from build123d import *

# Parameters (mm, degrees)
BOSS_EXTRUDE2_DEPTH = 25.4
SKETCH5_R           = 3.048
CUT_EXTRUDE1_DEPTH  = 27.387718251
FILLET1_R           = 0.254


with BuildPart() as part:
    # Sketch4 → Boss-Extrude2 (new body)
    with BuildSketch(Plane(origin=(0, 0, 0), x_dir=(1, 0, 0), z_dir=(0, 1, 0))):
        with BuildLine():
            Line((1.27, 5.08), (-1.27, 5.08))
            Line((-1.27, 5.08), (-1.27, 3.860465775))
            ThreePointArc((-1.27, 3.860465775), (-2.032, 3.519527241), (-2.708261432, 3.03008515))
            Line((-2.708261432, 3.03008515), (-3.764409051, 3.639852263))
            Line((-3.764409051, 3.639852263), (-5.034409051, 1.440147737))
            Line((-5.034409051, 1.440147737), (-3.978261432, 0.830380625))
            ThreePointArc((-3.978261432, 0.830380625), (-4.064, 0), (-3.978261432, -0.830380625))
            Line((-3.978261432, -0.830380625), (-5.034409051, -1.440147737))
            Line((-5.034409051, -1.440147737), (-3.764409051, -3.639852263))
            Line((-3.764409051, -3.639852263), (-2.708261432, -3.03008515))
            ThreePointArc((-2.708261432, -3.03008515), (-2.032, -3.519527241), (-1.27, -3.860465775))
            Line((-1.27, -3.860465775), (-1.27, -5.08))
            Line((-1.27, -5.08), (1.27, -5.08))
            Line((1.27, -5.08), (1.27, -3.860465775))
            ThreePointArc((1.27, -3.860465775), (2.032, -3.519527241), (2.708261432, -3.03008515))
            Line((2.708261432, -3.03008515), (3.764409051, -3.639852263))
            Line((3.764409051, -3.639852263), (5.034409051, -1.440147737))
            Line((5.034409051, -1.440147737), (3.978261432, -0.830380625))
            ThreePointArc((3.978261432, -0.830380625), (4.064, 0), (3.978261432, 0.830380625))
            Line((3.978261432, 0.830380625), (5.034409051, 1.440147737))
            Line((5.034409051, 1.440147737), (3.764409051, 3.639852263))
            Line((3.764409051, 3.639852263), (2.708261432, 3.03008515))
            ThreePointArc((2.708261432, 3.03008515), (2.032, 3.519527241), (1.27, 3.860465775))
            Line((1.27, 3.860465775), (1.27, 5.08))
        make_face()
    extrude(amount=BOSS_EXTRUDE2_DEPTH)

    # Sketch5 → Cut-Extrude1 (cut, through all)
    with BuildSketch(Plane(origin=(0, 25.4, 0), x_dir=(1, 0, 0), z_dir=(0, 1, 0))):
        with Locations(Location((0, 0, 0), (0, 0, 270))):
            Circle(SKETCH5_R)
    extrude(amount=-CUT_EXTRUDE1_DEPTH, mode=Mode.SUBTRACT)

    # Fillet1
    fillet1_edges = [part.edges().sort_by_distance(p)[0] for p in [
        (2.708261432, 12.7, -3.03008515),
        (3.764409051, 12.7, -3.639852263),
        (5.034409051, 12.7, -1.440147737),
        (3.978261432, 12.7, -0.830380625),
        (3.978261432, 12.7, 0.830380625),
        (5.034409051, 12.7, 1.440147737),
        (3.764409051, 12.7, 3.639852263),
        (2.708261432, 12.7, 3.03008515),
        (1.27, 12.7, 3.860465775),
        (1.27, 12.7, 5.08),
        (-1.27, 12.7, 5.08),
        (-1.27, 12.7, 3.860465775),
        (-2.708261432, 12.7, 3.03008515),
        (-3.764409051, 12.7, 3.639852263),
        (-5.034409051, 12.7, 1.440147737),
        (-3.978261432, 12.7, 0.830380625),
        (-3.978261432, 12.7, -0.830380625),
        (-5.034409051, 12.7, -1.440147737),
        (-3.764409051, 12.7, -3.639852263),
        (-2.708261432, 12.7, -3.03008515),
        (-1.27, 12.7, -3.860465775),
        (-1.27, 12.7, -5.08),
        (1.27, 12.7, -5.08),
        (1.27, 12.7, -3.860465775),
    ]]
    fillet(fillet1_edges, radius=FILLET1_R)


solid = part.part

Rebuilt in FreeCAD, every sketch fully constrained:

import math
import FreeCAD as App
import Part
import Sketcher
Q = App.Units.Quantity


def edges_at(feature, points):
    """Names of the edges that pass closest to the given points."""
    edges = feature.Shape.Edges
    near = lambda p: min(range(len(edges)), key=lambda i: edges[i].distToShape(Part.Vertex(*p))[0])
    return sorted({f"Edge{near(p) + 1}" for p in points})

doc = App.newDocument("Part")
body = doc.addObject("PartDesign::Body", "Body")

# Sketch on XZ plane
sketch1 = body.newObject("Sketcher::SketchObject", "Sketch")
sketch1.AttachmentSupport = (doc.getObject("XZ_Plane"), [""])
sketch1.MapMode = "FlatFace"
sketch1.addGeometry([
    Part.LineSegment(App.Vector(1.3, -5.1, 0), App.Vector(-1.3, -5.1, 0)),  # 0
    Part.LineSegment(App.Vector(-1.3, -5.1, 0), App.Vector(-1.3, -3.9, 0)),  # 1
    Part.ArcOfCircle(Part.Circle(App.Vector(0, 0, 0), App.Vector(0, 0, 1), 4.1), math.radians(-132), math.radians(-108)),  # 2
    Part.LineSegment(App.Vector(-2.7, -3, 0), App.Vector(-3.8, -3.6, 0)),  # 3
    Part.LineSegment(App.Vector(-3.8, -3.6, 0), App.Vector(-5, -1.4, 0)),  # 4
    Part.LineSegment(App.Vector(-5, -1.4, 0), App.Vector(-4, -0.8, 0)),  # 5
    Part.ArcOfCircle(Part.Circle(App.Vector(0, 0, 0), App.Vector(0, 0, 1), 4.1), math.radians(168), math.radians(192)),  # 6
    Part.LineSegment(App.Vector(-4, 0.8, 0), App.Vector(-5, 1.4, 0)),  # 7
    Part.LineSegment(App.Vector(-5, 1.4, 0), App.Vector(-3.8, 3.6, 0)),  # 8
    Part.LineSegment(App.Vector(-3.8, 3.6, 0), App.Vector(-2.7, 3, 0)),  # 9
    Part.ArcOfCircle(Part.Circle(App.Vector(0, 0, 0), App.Vector(0, 0, 1), 4.1), math.radians(108), math.radians(132)),  # 10
    Part.LineSegment(App.Vector(-1.3, 3.9, 0), App.Vector(-1.3, 5.1, 0)),  # 11
    Part.LineSegment(App.Vector(-1.3, 5.1, 0), App.Vector(1.3, 5.1, 0)),  # 12
    Part.LineSegment(App.Vector(1.3, 5.1, 0), App.Vector(1.3, 3.9, 0)),  # 13
    Part.ArcOfCircle(Part.Circle(App.Vector(0, 0, 0), App.Vector(0, 0, 1), 4.1), math.radians(48), math.radians(72)),  # 14
    Part.LineSegment(App.Vector(2.7, 3, 0), App.Vector(3.8, 3.6, 0)),  # 15
    Part.LineSegment(App.Vector(3.8, 3.6, 0), App.Vector(5, 1.4, 0)),  # 16
    Part.LineSegment(App.Vector(5, 1.4, 0), App.Vector(4, 0.8, 0)),  # 17
    Part.ArcOfCircle(Part.Circle(App.Vector(0, 0, 0), App.Vector(0, 0, 1), 4.1), math.radians(-12), math.radians(12)),  # 18
    Part.LineSegment(App.Vector(4, -0.8, 0), App.Vector(5, -1.4, 0)),  # 19
    Part.LineSegment(App.Vector(5, -1.4, 0), App.Vector(3.8, -3.6, 0)),  # 20
    Part.LineSegment(App.Vector(3.8, -3.6, 0), App.Vector(2.7, -3, 0)),  # 21
    Part.ArcOfCircle(Part.Circle(App.Vector(0, 0, 0), App.Vector(0, 0, 1), 4.1), math.radians(-72), math.radians(-48)),  # 22
    Part.LineSegment(App.Vector(1.3, -3.9, 0), App.Vector(1.3, -5.1, 0)),  # 23
], False)
sketch1.addConstraint([
    Sketcher.Constraint("Coincident", 0, 2, 1, 1),
    Sketcher.Constraint("Coincident", 1, 2, 2, 2),
    Sketcher.Constraint("Coincident", 2, 1, 3, 1),
    Sketcher.Constraint("Coincident", 3, 2, 4, 1),
    Sketcher.Constraint("Coincident", 4, 2, 5, 1),
    Sketcher.Constraint("Coincident", 5, 2, 6, 2),
    Sketcher.Constraint("Coincident", 6, 1, 7, 1),
    Sketcher.Constraint("Coincident", 7, 2, 8, 1),
    Sketcher.Constraint("Coincident", 8, 2, 9, 1),
    Sketcher.Constraint("Coincident", 9, 2, 10, 2),
    Sketcher.Constraint("Coincident", 10, 1, 11, 1),
    Sketcher.Constraint("Coincident", 11, 2, 12, 1),
    Sketcher.Constraint("Coincident", 12, 2, 13, 1),
    Sketcher.Constraint("Coincident", 13, 2, 14, 2),
    Sketcher.Constraint("Coincident", 14, 1, 15, 1),
    Sketcher.Constraint("Coincident", 15, 2, 16, 1),
    Sketcher.Constraint("Coincident", 16, 2, 17, 1),
    Sketcher.Constraint("Coincident", 17, 2, 18, 2),
    Sketcher.Constraint("Coincident", 18, 1, 19, 1),
    Sketcher.Constraint("Coincident", 19, 2, 20, 1),
    Sketcher.Constraint("Coincident", 20, 2, 21, 1),
    Sketcher.Constraint("Coincident", 21, 2, 22, 2),
    Sketcher.Constraint("Coincident", 22, 1, 23, 1),
    Sketcher.Constraint("Coincident", 23, 2, 0, 1),
    Sketcher.Constraint("Horizontal", 0),
    Sketcher.Constraint("Vertical", 1),
    Sketcher.Constraint("Vertical", 11),
    Sketcher.Constraint("Horizontal", 12),
    Sketcher.Constraint("Vertical", 13),
    Sketcher.Constraint("Vertical", 23),
    Sketcher.Constraint("Coincident", 2, 3, -1, 1),
    Sketcher.Constraint("Coincident", 6, 3, -1, 1),
    Sketcher.Constraint("Coincident", 10, 3, -1, 1),
    Sketcher.Constraint("Coincident", 14, 3, -1, 1),
    Sketcher.Constraint("Coincident", 18, 3, -1, 1),
    Sketcher.Constraint("Coincident", 22, 3, -1, 1),
    Sketcher.Constraint("Equal", 2, 6),
    Sketcher.Constraint("Equal", 6, 10),
    Sketcher.Constraint("Equal", 10, 14),
    Sketcher.Constraint("Equal", 14, 18),
    Sketcher.Constraint("Equal", 18, 22),
    Sketcher.Constraint("Symmetric", 0, 2, 12, 2, -1, 1),
    Sketcher.Constraint("Symmetric", 3, 2, 15, 2, -1, 1),
    Sketcher.Constraint("Symmetric", 4, 2, 16, 2, -1, 1),
    Sketcher.Constraint("Symmetric", 7, 2, 19, 2, -1, 1),
    Sketcher.Constraint("Symmetric", 8, 2, 20, 2, -1, 1),
    Sketcher.Constraint("Symmetric", 8, 2, 15, 2, -2),
    Sketcher.Constraint("Symmetric", 7, 2, 16, 2, -2),
    Sketcher.Constraint("Perpendicular", 3, 4),
    Sketcher.Constraint("Perpendicular", 4, 5),
    Sketcher.Constraint("Perpendicular", 7, 8),
    Sketcher.Constraint("Perpendicular", 8, 9),
    Sketcher.Constraint("Parallel", 5, 15),
    Sketcher.Constraint("Perpendicular", 16, 17),
    Sketcher.Constraint("Parallel", 9, 19),
    Sketcher.Constraint("Perpendicular", 20, 21),
    Sketcher.Constraint("Horizontal", 10, 1, 13, 2),
    Sketcher.Constraint("Horizontal", 1, 2, 22, 1),
    Sketcher.Constraint("Equal", 3, 5),
    Sketcher.Constraint("Radius", 2, Q("0.16 in")),
    Sketcher.Constraint("DistanceX", 0, 2, 0, 1, Q("0.1 in")),
    Sketcher.Constraint("Angle", 3, Q("-150 deg")),
    Sketcher.Constraint("Distance", 4, Q("0.1 in")),
    Sketcher.Constraint("DistanceY", 0, 2, -1, 1, Q("0.2 in")),
    Sketcher.Constraint("DistanceX", 3, 2, -1, 1, Q("3.764409 mm")),
])
pad1 = body.newObject("PartDesign::Pad", "Pad")
pad1.Profile = sketch1
pad1.Length = Q("1 in")
pad1.Reversed = True

# Sketch on XZ plane
sketch2 = body.newObject("Sketcher::SketchObject", "Sketch001")
sketch2.AttachmentSupport = (doc.getObject("XZ_Plane"), [""])
sketch2.MapMode = "FlatFace"
sketch2.AttachmentOffset = App.Placement(App.Vector(0, 0, -1 * 25.4), App.Rotation())
sketch2.addGeometry(Part.Circle(App.Vector(0, 0, 0), App.Vector(0, 0, 1), 3), False)
sketch2.addConstraint([
    Sketcher.Constraint("Coincident", 0, 3, -1, 1),
    Sketcher.Constraint("Diameter", 0, Q("0.24 in")),
])
pocket1 = body.newObject("PartDesign::Pocket", "Pocket")
pocket1.Profile = sketch2
pocket1.Type = "ThroughAll"
pocket1.Reversed = True
doc.recompute()

fillet = body.newObject("PartDesign::Fillet", "Fillet")
fillet.Base = (pocket1, edges_at(pocket1, [
    (2.708, 12.7, -3.03),
    (3.764, 12.7, -3.64),
    (5.034, 12.7, -1.44),
    (3.978, 12.7, -0.83),
    (3.978, 12.7, 0.83),
    (5.034, 12.7, 1.44),
    (3.764, 12.7, 3.64),
    (2.708, 12.7, 3.03),
    (1.27, 12.7, 3.86),
    (1.27, 12.7, 5.08),
    (-1.27, 12.7, 5.08),
    (-1.27, 12.7, 3.86),
    (-2.708, 12.7, 3.03),
    (-3.764, 12.7, 3.64),
    (-5.034, 12.7, 1.44),
    (-3.978, 12.7, 0.83),
    (-3.978, 12.7, -0.83),
    (-5.034, 12.7, -1.44),
    (-3.764, 12.7, -3.64),
    (-2.708, 12.7, -3.03),
    (-1.27, 12.7, -3.86),
    (-1.27, 12.7, -5.08),
    (1.27, 12.7, -5.08),
    (1.27, 12.7, -3.86),
]))
fillet.Radius = Q("0.01 in")

doc.recompute()
